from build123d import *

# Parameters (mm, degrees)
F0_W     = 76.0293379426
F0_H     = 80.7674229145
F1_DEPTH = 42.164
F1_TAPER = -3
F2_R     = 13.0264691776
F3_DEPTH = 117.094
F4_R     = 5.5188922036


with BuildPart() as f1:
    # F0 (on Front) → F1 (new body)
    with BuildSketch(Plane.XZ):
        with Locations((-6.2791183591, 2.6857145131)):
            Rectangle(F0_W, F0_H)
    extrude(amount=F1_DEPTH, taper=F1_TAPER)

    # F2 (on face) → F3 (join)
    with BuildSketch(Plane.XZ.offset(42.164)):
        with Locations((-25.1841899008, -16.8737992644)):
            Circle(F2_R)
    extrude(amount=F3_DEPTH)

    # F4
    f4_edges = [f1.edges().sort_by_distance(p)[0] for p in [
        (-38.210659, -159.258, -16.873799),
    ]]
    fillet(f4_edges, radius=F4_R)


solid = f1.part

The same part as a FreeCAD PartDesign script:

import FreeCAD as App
import Part
import Sketcher
Q = App.Units.Quantity


def edges_at(feature, points):
    """Names of the edges that pass closest to the given points."""
    edges = feature.Shape.Edges
    near = lambda p: min(range(len(edges)), key=lambda i: edges[i].distToShape(Part.Vertex(*p))[0])
    return sorted({f"Edge{near(p) + 1}" for p in points})


def add_polygon(sketch, points):
    """Adds a closed chain of lines whose ends are joined by coincident constraints."""
    first, n = sketch.GeometryCount, len(points)
    for a, b in zip(points, points[1:] + points[:1]):
        sketch.addGeometry(Part.LineSegment(App.Vector(*a, 0), App.Vector(*b, 0)), False)
    for i in range(n):
        sketch.addConstraint(Sketcher.Constraint("Coincident", first + i, 2, first + (i + 1) % n, 1))

doc = App.newDocument("Part")
body = doc.addObject("PartDesign::Body", "Body")

# Sketch on XZ plane
sketch1 = body.newObject("Sketcher::SketchObject", "Sketch")
sketch1.AttachmentSupport = (doc.getObject("XZ_Plane"), [""])
sketch1.MapMode = "FlatFace"
add_polygon(sketch1, [(-44, 43), (-44, -38), (32, -38), (32, 43)])  # lines 0-3
sketch1.addConstraint(Sketcher.Constraint("Vertical", 0))
sketch1.addConstraint(Sketcher.Constraint("Horizontal", 1))
sketch1.addConstraint(Sketcher.Constraint("Vertical", 2))
sketch1.addConstraint(Sketcher.Constraint("Horizontal", 3))
sketch1.addConstraint(Sketcher.Constraint("DistanceX", 1, 1, 1, 2, 76.029338))
sketch1.addConstraint(Sketcher.Constraint("DistanceY", 0, 2, 0, 1, 80.767423))
sketch1.addConstraint(Sketcher.Constraint("DistanceX", -1, 1, 1, 2, 31.735551))
sketch1.addConstraint(Sketcher.Constraint("DistanceY", 0, 2, -1, 1, 37.697997))
pad1 = body.newObject("PartDesign::Pad", "Pad")
pad1.Profile = sketch1
pad1.Length = Q("1.66 in")
pad1.TaperAngle = 3

# Sketch on XZ plane
sketch2 = body.newObject("Sketcher::SketchObject", "Sketch001")
sketch2.AttachmentSupport = (doc.getObject("XZ_Plane"), [""])
sketch2.MapMode = "FlatFace"
sketch2.AttachmentOffset = App.Placement(App.Vector(0, 0, 1.66 * 25.4), App.Rotation())
sketch2.addGeometry(Part.Circle(App.Vector(-25, -17, 0), App.Vector(0, 0, 1), 13), False)
sketch2.addConstraint(Sketcher.Constraint("Diameter", 0, 26.052938))
sketch2.addConstraint(Sketcher.Constraint("DistanceY", 0, 3, -1, 1, 16.873799))
sketch2.addConstraint(Sketcher.Constraint("DistanceX", 0, 3, -1, 1, 25.18419))
pad2 = body.newObject("PartDesign::Pad", "Pad001")
pad2.Profile = sketch2
pad2.Length = Q("4.61 in")
doc.recompute()

fillet = body.newObject("PartDesign::Fillet", "Fillet")
fillet.Base = (pad2, edges_at(pad2, [(-38.211, -159.258, -16.874)]))
fillet.Radius = 5.518892

doc.recompute()
